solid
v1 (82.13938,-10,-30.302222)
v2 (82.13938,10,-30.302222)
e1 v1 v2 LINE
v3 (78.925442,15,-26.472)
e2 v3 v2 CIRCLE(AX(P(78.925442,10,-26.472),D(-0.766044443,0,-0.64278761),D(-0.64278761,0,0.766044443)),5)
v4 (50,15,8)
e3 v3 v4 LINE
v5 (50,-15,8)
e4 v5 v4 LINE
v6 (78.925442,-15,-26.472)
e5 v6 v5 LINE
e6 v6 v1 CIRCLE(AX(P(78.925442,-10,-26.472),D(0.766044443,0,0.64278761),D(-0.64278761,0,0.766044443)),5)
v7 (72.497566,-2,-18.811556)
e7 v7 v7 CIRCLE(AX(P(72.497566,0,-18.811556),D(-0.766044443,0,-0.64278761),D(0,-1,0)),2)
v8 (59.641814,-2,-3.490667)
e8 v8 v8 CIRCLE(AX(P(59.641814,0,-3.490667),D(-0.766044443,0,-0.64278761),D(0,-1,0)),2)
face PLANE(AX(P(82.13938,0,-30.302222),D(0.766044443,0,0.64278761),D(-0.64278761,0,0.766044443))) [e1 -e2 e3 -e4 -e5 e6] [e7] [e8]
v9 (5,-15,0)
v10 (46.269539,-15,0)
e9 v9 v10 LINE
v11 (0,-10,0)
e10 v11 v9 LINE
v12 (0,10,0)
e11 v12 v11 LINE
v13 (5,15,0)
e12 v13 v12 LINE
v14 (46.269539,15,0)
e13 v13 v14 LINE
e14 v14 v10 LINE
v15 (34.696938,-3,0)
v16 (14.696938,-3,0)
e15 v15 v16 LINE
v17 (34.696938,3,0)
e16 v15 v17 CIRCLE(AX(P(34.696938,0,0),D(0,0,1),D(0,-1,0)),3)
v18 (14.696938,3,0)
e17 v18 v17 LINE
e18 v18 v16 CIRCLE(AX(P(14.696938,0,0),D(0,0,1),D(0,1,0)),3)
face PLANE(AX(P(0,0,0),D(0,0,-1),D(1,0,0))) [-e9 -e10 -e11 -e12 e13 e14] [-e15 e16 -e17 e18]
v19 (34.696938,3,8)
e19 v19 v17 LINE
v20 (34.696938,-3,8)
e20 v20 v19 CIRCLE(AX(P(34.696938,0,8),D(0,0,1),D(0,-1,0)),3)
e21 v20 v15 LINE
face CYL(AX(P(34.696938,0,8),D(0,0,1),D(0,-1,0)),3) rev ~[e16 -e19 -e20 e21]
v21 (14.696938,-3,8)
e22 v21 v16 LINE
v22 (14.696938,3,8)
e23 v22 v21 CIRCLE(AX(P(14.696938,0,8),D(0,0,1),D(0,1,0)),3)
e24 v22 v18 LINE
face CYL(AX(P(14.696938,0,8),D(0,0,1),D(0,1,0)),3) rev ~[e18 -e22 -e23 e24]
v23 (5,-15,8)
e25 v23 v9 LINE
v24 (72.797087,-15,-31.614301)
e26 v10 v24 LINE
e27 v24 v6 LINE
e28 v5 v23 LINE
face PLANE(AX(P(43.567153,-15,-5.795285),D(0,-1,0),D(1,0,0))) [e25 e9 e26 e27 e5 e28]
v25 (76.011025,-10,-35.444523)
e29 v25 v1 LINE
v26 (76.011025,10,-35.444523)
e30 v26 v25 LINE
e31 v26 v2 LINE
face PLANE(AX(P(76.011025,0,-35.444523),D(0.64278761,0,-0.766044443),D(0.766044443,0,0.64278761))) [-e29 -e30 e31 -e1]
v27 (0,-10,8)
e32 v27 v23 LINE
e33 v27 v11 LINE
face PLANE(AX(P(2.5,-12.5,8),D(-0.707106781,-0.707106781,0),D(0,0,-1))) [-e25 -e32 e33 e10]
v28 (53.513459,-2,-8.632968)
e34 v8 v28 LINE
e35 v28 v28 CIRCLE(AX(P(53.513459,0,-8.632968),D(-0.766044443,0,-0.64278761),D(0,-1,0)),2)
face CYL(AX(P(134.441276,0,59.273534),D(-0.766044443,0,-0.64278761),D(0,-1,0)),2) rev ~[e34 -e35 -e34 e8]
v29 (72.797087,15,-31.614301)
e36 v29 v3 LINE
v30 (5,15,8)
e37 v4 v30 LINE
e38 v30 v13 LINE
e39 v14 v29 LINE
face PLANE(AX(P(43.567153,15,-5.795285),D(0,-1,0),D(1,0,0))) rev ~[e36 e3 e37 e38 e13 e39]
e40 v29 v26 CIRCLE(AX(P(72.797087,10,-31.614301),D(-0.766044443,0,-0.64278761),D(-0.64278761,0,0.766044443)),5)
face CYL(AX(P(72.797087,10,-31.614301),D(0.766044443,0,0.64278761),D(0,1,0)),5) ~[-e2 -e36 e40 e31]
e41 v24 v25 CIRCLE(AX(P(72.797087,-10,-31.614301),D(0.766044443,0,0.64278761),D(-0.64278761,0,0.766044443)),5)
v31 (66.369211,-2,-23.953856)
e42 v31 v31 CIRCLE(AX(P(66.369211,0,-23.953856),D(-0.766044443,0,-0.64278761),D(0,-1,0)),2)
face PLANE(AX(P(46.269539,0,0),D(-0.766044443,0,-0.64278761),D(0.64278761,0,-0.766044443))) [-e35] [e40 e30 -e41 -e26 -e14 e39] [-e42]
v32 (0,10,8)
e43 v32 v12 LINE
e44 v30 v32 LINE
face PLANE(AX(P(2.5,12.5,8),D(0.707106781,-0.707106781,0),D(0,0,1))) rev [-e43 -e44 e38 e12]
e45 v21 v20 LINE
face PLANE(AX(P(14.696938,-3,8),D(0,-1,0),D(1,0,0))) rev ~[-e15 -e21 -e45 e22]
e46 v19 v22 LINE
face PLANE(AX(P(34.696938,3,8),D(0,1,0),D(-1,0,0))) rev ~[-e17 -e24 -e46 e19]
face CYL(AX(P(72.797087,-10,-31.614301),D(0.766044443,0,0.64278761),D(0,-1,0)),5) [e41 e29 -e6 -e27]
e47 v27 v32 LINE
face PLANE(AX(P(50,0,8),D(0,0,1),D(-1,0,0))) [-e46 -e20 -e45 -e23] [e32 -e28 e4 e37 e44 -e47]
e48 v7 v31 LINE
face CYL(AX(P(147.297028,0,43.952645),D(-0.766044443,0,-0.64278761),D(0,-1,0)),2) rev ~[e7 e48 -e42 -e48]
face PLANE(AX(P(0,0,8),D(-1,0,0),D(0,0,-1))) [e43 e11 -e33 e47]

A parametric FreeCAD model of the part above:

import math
import FreeCAD as App
import Part
import Sketcher
from FreeCAD import Vector
Q = App.Units.Quantity


def edges_at(feature, points):
    """Names of the edges that pass closest to the given points."""
    edges = feature.Shape.Edges
    near = lambda p: min(range(len(edges)), key=lambda i: edges[i].distToShape(Part.Vertex(*p))[0])
    return sorted({f"Edge{near(p) + 1}" for p in points})

doc = App.newDocument("Part")
body = doc.addObject("PartDesign::Body", "Body")

sketch1 = body.newObject("Sketcher::SketchObject", "Sketch")
sketch1.AttachmentSupport = (doc.getObject("XZ_Plane"), [""])
sketch1.MapMode = "FlatFace"
sketch1.addGeometry(Part.LineSegment(Vector(0, 8, 0), Vector(0, 0, 0)), False)
sketch1.addGeometry(Part.LineSegment(Vector(0, 0, 0), Vector(46, 0, 0)), False)
sketch1.addGeometry(Part.LineSegment(Vector(46, 0, 0), Vector(76, -35, 0)), False)
sketch1.addGeometry(Part.LineSegment(Vector(76, -35, 0), Vector(82, -30, 0)), False)
sketch1.addGeometry(Part.LineSegment(Vector(82, -30, 0), Vector(50, 8, 0)), False)
sketch1.addGeometry(Part.LineSegment(Vector(50, 8, 0), Vector(0, 8, 0)), False)
sketch1.addConstraint(Sketcher.Constraint("Coincident", 0, 2, 1, 1))
sketch1.addConstraint(Sketcher.Constraint("Coincident", 1, 2, 2, 1))
sketch1.addConstraint(Sketcher.Constraint("Coincident", 2, 2, 3, 1))
sketch1.addConstraint(Sketcher.Constraint("Coincident", 3, 2, 4, 1))
sketch1.addConstraint(Sketcher.Constraint("Coincident", 4, 2, 5, 1))
sketch1.addConstraint(Sketcher.Constraint("Coincident", 5, 2, 0, 1))
sketch1.addConstraint(Sketcher.Constraint("Vertical", 0))
sketch1.addConstraint(Sketcher.Constraint("Horizontal", 1))
sketch1.addConstraint(Sketcher.Constraint("Horizontal", 5))
sketch1.addConstraint(Sketcher.Constraint("Coincident", 0, 2, -1, 1))
sketch1.addConstraint(Sketcher.Constraint("Perpendicular", 2, 3))
sketch1.addConstraint(Sketcher.Constraint("Perpendicular", 3, 4))
sketch1.addConstraint(Sketcher.Constraint("DistanceX", 5, 2, 5, 1, 50.0))
sketch1.addConstraint(Sketcher.Constraint("DistanceY", 0, 2, 0, 1, 8.0))
sketch1.addConstraint(Sketcher.Constraint("Angle", 2, Q("-50 deg")))
sketch1.addConstraint(Sketcher.Constraint("Distance", 3, 8.0))
sketch1.addConstraint(Sketcher.Constraint("Distance", 4, 50.0))
pad1 = body.newObject("PartDesign::Pad", "Pad")
pad1.Profile = sketch1
pad1.Length = 30
pad1.Midplane = True

sketch2 = body.newObject("Sketcher::SketchObject", "Sketch001")
sketch2.AttachmentSupport = (doc.getObject("XY_Plane"), [""])
sketch2.MapMode = "FlatFace"
sketch2.AttachmentOffset = App.Placement(Vector(0, 0, 8), App.Rotation())
sketch2.addGeometry(Part.ArcOfCircle(Part.Circle(Vector(14.7, 0, 0), Vector(0, 0, 1), 3), math.radians(90), math.radians(270)), False)
sketch2.addGeometry(Part.LineSegment(Vector(14.7, -3, 0), Vector(34.7, -3, 0)), False)
sketch2.addGeometry(Part.ArcOfCircle(Part.Circle(Vector(34.7, 0, 0), Vector(0, 0, 1), 3), math.radians(-90), math.radians(90)), False)
sketch2.addGeometry(Part.LineSegment(Vector(34.7, 3, 0), Vector(14.7, 3, 0)), False)
sketch2.addConstraint(Sketcher.Constraint("Tangent", 0, 2, 1, 1))
sketch2.addConstraint(Sketcher.Constraint("Tangent", 1, 2, 2, 1))
sketch2.addConstraint(Sketcher.Constraint("Tangent", 2, 2, 3, 1))
sketch2.addConstraint(Sketcher.Constraint("Tangent", 3, 2, 0, 1))
sketch2.addConstraint(Sketcher.Constraint("Horizontal", 1))
sketch2.addConstraint(Sketcher.Constraint("Horizontal", 3))
sketch2.addConstraint(Sketcher.Constraint("PointOnObject", 0, 3, -1))
sketch2.addConstraint(Sketcher.Constraint("Radius", 0, 3.0))
sketch2.addConstraint(Sketcher.Constraint("DistanceX", 1, 1, 1, 2, 20.0))
sketch2.addConstraint(Sketcher.Constraint("DistanceX", -1, 1, 0, 3, 14.696938))
pocket1 = body.newObject("PartDesign::Pocket", "Pocket")
pocket1.Profile = sketch2
pocket1.Type = "ThroughAll"

sketch3 = body.newObject("Sketcher::SketchObject", "Sketch002")
sketch3.Placement = App.Placement(Vector(33.280435, 0, 27.925601), App.Rotation(Vector(0, 1, 0), Vector(-0.64278761, 0, 0.766044443), Vector(0.766044443, 0, 0.64278761), "ZXY"))
sketch3.addGeometry(Part.Circle(Vector(0, -41, 0), Vector(0, 0, 1), 2), False)
sketch3.addGeometry(Part.Circle(Vector(0, -61, 0), Vector(0, 0, 1), 2), False)
sketch3.addConstraint(Sketcher.Constraint("Equal", 0, 1))
sketch3.addConstraint(Sketcher.Constraint("PointOnObject", 0, 3, -2))
sketch3.addConstraint(Sketcher.Constraint("PointOnObject", 1, 3, -2))
sketch3.addConstraint(Sketcher.Constraint("Diameter", 0, 4.0))
sketch3.addConstraint(Sketcher.Constraint("DistanceY", 1, 3, 0, 3, 20.0))
sketch3.addConstraint(Sketcher.Constraint("DistanceY", 0, 3, -1, 1, 41.011025))
doc.recompute()
hole = body.newObject("PartDesign::Hole", "Hole")
hole.Profile = sketch3
hole.ThreadType = "None"
hole.Diameter = 4
hole.DepthType = "ThroughAll"
doc.recompute()

fillet = body.newObject("PartDesign::Fillet", "Fillet")
fillet.Base = (hole, edges_at(hole, [(79.075, -15, -32.873), (79.075, 15, -32.873)]))
fillet.Radius = 5
doc.recompute()

chamfer = body.newObject("PartDesign::Chamfer", "Chamfer")
chamfer.Base = (fillet, edges_at(fillet, [(0, -15, 4), (0, 15, 4)]))
chamfer.Size = 5

doc.recompute()
